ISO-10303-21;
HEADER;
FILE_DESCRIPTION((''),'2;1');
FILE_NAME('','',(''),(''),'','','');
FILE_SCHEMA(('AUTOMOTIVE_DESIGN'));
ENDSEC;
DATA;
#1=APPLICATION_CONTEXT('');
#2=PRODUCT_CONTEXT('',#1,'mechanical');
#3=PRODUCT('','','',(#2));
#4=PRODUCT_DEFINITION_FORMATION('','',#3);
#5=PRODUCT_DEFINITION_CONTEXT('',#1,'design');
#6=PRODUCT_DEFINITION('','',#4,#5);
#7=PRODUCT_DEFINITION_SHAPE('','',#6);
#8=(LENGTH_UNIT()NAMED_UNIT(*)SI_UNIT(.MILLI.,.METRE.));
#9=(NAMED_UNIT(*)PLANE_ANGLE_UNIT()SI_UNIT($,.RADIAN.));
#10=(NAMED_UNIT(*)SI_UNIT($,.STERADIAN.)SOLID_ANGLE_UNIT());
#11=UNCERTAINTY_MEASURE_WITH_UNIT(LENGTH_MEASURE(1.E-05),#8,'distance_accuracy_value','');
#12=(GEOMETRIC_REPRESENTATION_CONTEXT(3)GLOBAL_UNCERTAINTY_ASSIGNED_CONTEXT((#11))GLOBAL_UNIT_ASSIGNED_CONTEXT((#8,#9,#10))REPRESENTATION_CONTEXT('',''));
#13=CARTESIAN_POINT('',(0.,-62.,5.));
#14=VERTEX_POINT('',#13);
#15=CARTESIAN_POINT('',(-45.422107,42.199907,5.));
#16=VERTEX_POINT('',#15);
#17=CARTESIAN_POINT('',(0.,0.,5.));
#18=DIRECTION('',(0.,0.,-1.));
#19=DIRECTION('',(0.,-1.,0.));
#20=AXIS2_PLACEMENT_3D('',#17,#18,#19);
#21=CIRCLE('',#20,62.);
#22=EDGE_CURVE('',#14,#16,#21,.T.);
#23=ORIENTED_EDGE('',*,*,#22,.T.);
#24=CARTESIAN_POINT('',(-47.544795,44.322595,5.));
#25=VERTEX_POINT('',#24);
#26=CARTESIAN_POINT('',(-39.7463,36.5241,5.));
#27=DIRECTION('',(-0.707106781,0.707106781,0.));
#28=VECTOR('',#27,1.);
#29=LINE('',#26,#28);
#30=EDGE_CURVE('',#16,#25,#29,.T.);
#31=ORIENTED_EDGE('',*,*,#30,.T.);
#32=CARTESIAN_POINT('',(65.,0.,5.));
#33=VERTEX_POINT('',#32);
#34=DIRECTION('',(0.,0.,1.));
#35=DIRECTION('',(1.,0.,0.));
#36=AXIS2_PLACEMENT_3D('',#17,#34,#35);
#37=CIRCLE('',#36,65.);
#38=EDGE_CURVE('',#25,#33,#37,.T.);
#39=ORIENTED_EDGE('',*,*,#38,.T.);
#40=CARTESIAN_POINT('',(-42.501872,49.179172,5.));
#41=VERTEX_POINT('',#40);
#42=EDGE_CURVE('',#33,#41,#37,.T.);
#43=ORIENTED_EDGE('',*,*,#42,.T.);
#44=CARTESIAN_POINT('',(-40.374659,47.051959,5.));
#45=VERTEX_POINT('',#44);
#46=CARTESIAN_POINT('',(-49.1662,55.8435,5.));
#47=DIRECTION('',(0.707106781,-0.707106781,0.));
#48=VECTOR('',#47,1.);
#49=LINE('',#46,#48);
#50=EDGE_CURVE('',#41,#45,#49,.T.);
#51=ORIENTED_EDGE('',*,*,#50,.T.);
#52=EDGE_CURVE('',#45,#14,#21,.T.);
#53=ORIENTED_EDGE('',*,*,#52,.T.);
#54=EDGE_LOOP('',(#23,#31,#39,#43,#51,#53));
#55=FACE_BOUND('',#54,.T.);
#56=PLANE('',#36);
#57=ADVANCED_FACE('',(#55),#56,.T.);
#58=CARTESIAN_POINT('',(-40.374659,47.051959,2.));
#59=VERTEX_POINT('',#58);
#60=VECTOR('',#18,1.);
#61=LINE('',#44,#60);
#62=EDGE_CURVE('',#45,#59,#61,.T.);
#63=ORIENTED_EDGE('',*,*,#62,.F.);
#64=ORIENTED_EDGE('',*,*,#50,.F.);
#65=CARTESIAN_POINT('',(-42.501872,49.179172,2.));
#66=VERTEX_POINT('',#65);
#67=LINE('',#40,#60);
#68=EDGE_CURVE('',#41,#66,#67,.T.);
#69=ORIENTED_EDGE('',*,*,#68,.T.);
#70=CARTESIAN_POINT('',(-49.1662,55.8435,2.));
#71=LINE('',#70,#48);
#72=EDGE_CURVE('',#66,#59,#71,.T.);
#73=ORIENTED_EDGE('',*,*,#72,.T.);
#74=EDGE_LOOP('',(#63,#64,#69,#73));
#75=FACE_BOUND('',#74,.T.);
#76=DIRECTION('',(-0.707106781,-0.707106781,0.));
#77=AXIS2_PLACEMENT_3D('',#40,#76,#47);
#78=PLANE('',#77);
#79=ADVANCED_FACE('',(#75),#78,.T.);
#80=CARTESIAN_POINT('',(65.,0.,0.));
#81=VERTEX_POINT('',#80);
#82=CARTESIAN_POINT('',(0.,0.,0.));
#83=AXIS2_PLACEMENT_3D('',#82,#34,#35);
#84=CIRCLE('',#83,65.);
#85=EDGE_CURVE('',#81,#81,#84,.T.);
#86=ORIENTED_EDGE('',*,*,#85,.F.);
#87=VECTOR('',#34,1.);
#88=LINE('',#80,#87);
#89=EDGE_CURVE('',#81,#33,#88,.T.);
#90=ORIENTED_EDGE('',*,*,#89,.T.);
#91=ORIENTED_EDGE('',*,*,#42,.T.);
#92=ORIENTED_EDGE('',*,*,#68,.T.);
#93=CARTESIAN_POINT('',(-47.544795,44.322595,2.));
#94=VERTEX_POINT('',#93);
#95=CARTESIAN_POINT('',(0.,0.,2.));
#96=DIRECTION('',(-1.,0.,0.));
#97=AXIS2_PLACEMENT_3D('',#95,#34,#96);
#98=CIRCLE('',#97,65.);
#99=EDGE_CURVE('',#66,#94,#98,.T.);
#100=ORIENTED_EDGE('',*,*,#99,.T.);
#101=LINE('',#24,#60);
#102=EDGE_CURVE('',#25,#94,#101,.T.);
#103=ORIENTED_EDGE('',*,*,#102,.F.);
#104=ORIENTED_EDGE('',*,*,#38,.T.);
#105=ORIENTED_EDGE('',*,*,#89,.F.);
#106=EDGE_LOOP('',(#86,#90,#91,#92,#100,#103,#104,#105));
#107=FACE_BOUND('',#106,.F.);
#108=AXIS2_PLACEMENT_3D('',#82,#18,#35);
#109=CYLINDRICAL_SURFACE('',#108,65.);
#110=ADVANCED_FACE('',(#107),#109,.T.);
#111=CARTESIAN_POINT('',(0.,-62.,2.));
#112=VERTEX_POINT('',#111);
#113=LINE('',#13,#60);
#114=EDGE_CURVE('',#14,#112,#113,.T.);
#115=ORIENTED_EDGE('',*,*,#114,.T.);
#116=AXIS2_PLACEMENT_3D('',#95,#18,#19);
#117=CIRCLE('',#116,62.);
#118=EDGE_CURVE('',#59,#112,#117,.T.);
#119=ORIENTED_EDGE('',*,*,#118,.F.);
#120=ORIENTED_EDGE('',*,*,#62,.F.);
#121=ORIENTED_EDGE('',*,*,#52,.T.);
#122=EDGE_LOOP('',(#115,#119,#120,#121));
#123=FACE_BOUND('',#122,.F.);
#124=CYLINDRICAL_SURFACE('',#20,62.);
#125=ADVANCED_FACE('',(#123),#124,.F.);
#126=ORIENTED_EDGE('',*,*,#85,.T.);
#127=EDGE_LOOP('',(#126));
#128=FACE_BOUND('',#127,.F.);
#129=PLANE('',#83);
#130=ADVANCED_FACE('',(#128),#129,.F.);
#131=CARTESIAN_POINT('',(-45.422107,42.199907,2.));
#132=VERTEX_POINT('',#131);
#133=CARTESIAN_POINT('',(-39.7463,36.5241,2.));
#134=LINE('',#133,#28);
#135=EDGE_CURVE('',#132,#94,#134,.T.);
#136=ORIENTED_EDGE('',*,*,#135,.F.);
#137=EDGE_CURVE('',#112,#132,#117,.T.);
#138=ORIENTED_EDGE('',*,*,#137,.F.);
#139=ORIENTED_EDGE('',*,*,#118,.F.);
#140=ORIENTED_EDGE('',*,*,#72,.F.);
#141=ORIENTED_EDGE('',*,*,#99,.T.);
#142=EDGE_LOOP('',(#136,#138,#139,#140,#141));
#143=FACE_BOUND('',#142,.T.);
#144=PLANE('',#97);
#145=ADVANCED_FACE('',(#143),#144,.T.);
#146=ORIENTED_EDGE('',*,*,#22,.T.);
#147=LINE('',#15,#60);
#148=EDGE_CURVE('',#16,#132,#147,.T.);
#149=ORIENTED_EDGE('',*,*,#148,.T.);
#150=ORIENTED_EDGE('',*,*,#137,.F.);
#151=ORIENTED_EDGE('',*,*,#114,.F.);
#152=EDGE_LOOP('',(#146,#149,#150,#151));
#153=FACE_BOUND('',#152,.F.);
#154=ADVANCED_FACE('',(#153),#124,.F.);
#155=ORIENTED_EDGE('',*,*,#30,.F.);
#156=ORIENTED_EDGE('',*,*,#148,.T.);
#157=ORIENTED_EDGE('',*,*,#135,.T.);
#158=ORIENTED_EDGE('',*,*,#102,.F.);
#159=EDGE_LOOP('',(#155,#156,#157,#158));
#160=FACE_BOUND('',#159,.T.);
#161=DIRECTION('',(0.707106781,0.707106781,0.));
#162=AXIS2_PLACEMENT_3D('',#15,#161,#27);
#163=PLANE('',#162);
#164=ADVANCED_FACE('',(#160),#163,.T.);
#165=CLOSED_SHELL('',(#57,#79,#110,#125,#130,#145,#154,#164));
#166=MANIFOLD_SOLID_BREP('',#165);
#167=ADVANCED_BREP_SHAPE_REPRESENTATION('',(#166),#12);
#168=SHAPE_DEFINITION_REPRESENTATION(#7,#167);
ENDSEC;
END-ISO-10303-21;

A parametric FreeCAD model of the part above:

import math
import FreeCAD as App
import Part
import Sketcher
from FreeCAD import Vector
Q = App.Units.Quantity

doc = App.newDocument("Part")
body = doc.addObject("PartDesign::Body", "Body")

# Sketch on XY plane
sketch1 = body.newObject("Sketcher::SketchObject", "Sketch")
sketch1.AttachmentSupport = (doc.getObject("XY_Plane"), [""])
sketch1.MapMode = "FlatFace"
sketch1.addGeometry(Part.Circle(Vector(0, 0, 0), Vector(0, 0, 1), 65), False)
sketch1.addConstraint(Sketcher.Constraint("Coincident", 0, 3, -1, 1))
sketch1.addConstraint(Sketcher.Constraint("Diameter", 0, Q("130 mm")))
pad1 = body.newObject("PartDesign::Pad", "Pad")
pad1.Profile = sketch1
pad1.Length = 5

# Sketch on XY plane
sketch2 = body.newObject("Sketcher::SketchObject", "Sketch001")
sketch2.AttachmentSupport = (doc.getObject("XY_Plane"), [""])
sketch2.MapMode = "FlatFace"
sketch2.AttachmentOffset = App.Placement(Vector(0, 0, 5), App.Rotation())
sketch2.addGeometry(Part.Circle(Vector(0, 0, 0), Vector(0, 0, 1), 62), False)
sketch2.addConstraint(Sketcher.Constraint("Coincident", 0, 3, -1, 1))
sketch2.addConstraint(Sketcher.Constraint("Diameter", 0, Q("124 mm")))
doc.recompute()
hole = body.newObject("PartDesign::Hole", "Hole")
hole.Profile = sketch2
hole.ThreadType = "None"
hole.Diameter = 124
hole.DepthType = "Dimension"
hole.Depth = 3
hole.DrillPoint = "Flat"

# Sketch on XY plane
sketch3 = body.newObject("Sketcher::SketchObject", "Sketch002")
sketch3.AttachmentSupport = (doc.getObject("XY_Plane"), [""])
sketch3.MapMode = "FlatFace"
sketch3.AttachmentOffset = App.Placement(Vector(0, 0, 5), App.Rotation())
sketch3.addGeometry(Part.ArcOfCircle(Part.Circle(Vector(0, 0, 0), Vector(0, 0, 1), 62), math.radians(130.63), math.radians(137.11)), False)
sketch3.addGeometry(Part.LineSegment(Vector(-40.4, 47.1, 0), Vector(-42.5, 49.2, 0)), False)
sketch3.addGeometry(Part.ArcOfCircle(Part.Circle(Vector(0, 0, 0), Vector(0, 0, 1), 65), math.radians(130.83), math.radians(137.01)), False)
sketch3.addGeometry(Part.LineSegment(Vector(-47.5, 44.3, 0), Vector(-45.4, 42.2, 0)), False)
sketch3.addConstraint(Sketcher.Constraint("Coincident", 0, 1, 1, 1))
sketch3.addConstraint(Sketcher.Constraint("Coincident", 1, 2, 2, 1))
sketch3.addConstraint(Sketcher.Constraint("Coincident", 2, 2, 3, 1))
sketch3.addConstraint(Sketcher.Constraint("Coincident", 3, 2, 0, 2))
sketch3.addConstraint(Sketcher.Constraint("Coincident", 0, 3, -1, 1))
sketch3.addConstraint(Sketcher.Constraint("Coincident", 2, 3, -1, 1))
sketch3.addConstraint(Sketcher.Constraint("Parallel", 1, 3))
sketch3.addConstraint(Sketcher.Constraint("Radius", 0, Q("62 mm")))
sketch3.addConstraint(Sketcher.Constraint("Radius", 2, Q("65 mm")))
sketch3.addConstraint(Sketcher.Constraint("Angle", 1, Q("135 deg")))
sketch3.addConstraint(Sketcher.Constraint("DistanceY", -1, 1, 3, 2, Q("42.2 mm")))
sketch3.addConstraint(Sketcher.Constraint("DistanceY", -1, 1, 0, 1, Q("47.052 mm")))
pocket1 = body.newObject("PartDesign::Pocket", "Pocket")
pocket1.Profile = sketch3
pocket1.Length = 3

doc.recompute()
